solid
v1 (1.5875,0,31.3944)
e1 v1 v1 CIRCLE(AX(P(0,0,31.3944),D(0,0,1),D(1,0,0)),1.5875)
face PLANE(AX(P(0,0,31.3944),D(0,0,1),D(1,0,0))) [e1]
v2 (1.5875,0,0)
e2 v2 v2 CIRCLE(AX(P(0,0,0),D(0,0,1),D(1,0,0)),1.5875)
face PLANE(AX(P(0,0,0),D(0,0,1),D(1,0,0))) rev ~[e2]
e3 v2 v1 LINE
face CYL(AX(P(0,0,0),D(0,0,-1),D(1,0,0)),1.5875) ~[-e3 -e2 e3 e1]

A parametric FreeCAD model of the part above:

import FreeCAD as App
import Part
import Sketcher
from FreeCAD import Vector
Q = App.Units.Quantity

doc = App.newDocument("Part")
params = doc.addObject("Spreadsheet::Sheet", "Params")
for row, (alias, value) in enumerate([
    ("sketch1_diameter", "0.125 in"),
    ("pad1_length", "1.236 in"),
], start=1):
    params.set(f"A{row}", alias)
    params.set(f"B{row}", "=" + value)
    params.setAlias(f"B{row}", alias)

body = doc.addObject("PartDesign::Body", "Body")

# Sketch on XY plane
sketch1 = doc.addObject("Sketcher::SketchObject", "Sketch")
body.addObject(sketch1)
sketch1.AttachmentSupport = (doc.XY_Plane, [""])
sketch1.MapMode = "FlatFace"
sketch1.addGeometry(Part.Circle(Vector(0, 0, 0), Vector(0, 0, 1), 1.6), False)
sketch1.addConstraint([
    Sketcher.Constraint("Coincident", 0, 3, -1, 1),
    Sketcher.Constraint("Diameter", 0, Q("0.125 in")),
])
sketch1.setExpression("Constraints[1]", "Params.sketch1_diameter")
pad1 = doc.addObject("PartDesign::Pad", "Pad")
body.addObject(pad1)
pad1.Profile = sketch1
pad1.setExpression("Length", "Params.pad1_length")

doc.recompute()
